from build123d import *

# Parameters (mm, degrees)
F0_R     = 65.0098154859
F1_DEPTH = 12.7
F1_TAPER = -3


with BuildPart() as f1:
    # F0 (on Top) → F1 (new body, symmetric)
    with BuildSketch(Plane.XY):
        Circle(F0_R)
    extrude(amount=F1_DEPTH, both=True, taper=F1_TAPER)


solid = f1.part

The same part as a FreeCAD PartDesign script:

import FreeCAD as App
import Part
import Sketcher
from FreeCAD import Vector
Q = App.Units.Quantity

doc = App.newDocument("Part")
body = doc.addObject("PartDesign::Body", "Body")

# Sketch on XY plane
sketch1 = body.newObject("Sketcher::SketchObject", "Sketch")
sketch1.AttachmentSupport = (doc.getObject("XY_Plane"), [""])
sketch1.MapMode = "FlatFace"
sketch1.addGeometry(Part.Circle(Vector(0, 0, 0), Vector(0, 0, 1), 65), False)
sketch1.addConstraint([
    Sketcher.Constraint("Coincident", 0, 3, -1, 1),
    Sketcher.Constraint("Diameter", 0, Q("130.019631 mm")),
])
pad1 = body.newObject("PartDesign::Pad", "Pad")
pad1.Profile = sketch1
pad1.Length = Q("1 in")
pad1.Midplane = True
pad1.TaperAngle = 3

doc.recompute()
